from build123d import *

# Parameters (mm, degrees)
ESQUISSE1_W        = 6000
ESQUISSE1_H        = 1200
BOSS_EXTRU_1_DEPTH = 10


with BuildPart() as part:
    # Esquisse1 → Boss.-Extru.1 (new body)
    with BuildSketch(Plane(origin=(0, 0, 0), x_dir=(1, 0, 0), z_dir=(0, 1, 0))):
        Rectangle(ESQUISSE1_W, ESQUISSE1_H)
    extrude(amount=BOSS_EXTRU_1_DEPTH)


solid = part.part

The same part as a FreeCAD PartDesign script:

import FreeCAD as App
import Part
import Sketcher
from FreeCAD import Vector
Q = App.Units.Quantity


def add_polygon(sketch, points):
    """Adds a closed chain of lines whose ends are joined by coincident constraints."""
    first, n = sketch.GeometryCount, len(points)
    for a, b in zip(points, points[1:] + points[:1]):
        sketch.addGeometry(Part.LineSegment(App.Vector(*a, 0), App.Vector(*b, 0)), False)
    for i in range(n):
        sketch.addConstraint(Sketcher.Constraint("Coincident", first + i, 2, first + (i + 1) % n, 1))

doc = App.newDocument("Part")
params = doc.addObject("Spreadsheet::Sheet", "Params")
for row, (alias, value) in enumerate([
    ("sketch1_width", "6000 mm"),
    ("sketch1_height", "1200 mm"),
    ("pad1_length", "10 mm"),
], start=1):
    params.set(f"A{row}", alias)
    params.set(f"B{row}", "=" + value)
    params.setAlias(f"B{row}", alias)

body = doc.addObject("PartDesign::Body", "Body")

sketch1 = body.newObject("Sketcher::SketchObject", "Sketch")
sketch1.AttachmentSupport = (doc.getObject("XZ_Plane"), [""])
sketch1.MapMode = "FlatFace"
add_polygon(sketch1, [(-3000, -600), (-3000, 600), (3000, 600), (3000, -600)])
sketch1.addConstraint(Sketcher.Constraint("Vertical", 0))
sketch1.addConstraint(Sketcher.Constraint("Horizontal", 1))
sketch1.addConstraint(Sketcher.Constraint("Vertical", 2))
sketch1.addConstraint(Sketcher.Constraint("Horizontal", 3))
sketch1.addConstraint(Sketcher.Constraint("Symmetric", 0, 2, 2, 2, -1, 1))
sketch1.addConstraint(Sketcher.Constraint("DistanceX", 1, 1, 1, 2, Q("6000 mm")))
sketch1.addConstraint(Sketcher.Constraint("DistanceY", 0, 1, 0, 2, Q("1200 mm")))
sketch1.setExpression("Constraints[9]", "Params.sketch1_width")
sketch1.setExpression("Constraints[10]", "Params.sketch1_height")
pad1 = body.newObject("PartDesign::Pad", "Pad")
pad1.Profile = sketch1
pad1.setExpression("Length", "Params.pad1_length")
pad1.Reversed = True

doc.recompute()
